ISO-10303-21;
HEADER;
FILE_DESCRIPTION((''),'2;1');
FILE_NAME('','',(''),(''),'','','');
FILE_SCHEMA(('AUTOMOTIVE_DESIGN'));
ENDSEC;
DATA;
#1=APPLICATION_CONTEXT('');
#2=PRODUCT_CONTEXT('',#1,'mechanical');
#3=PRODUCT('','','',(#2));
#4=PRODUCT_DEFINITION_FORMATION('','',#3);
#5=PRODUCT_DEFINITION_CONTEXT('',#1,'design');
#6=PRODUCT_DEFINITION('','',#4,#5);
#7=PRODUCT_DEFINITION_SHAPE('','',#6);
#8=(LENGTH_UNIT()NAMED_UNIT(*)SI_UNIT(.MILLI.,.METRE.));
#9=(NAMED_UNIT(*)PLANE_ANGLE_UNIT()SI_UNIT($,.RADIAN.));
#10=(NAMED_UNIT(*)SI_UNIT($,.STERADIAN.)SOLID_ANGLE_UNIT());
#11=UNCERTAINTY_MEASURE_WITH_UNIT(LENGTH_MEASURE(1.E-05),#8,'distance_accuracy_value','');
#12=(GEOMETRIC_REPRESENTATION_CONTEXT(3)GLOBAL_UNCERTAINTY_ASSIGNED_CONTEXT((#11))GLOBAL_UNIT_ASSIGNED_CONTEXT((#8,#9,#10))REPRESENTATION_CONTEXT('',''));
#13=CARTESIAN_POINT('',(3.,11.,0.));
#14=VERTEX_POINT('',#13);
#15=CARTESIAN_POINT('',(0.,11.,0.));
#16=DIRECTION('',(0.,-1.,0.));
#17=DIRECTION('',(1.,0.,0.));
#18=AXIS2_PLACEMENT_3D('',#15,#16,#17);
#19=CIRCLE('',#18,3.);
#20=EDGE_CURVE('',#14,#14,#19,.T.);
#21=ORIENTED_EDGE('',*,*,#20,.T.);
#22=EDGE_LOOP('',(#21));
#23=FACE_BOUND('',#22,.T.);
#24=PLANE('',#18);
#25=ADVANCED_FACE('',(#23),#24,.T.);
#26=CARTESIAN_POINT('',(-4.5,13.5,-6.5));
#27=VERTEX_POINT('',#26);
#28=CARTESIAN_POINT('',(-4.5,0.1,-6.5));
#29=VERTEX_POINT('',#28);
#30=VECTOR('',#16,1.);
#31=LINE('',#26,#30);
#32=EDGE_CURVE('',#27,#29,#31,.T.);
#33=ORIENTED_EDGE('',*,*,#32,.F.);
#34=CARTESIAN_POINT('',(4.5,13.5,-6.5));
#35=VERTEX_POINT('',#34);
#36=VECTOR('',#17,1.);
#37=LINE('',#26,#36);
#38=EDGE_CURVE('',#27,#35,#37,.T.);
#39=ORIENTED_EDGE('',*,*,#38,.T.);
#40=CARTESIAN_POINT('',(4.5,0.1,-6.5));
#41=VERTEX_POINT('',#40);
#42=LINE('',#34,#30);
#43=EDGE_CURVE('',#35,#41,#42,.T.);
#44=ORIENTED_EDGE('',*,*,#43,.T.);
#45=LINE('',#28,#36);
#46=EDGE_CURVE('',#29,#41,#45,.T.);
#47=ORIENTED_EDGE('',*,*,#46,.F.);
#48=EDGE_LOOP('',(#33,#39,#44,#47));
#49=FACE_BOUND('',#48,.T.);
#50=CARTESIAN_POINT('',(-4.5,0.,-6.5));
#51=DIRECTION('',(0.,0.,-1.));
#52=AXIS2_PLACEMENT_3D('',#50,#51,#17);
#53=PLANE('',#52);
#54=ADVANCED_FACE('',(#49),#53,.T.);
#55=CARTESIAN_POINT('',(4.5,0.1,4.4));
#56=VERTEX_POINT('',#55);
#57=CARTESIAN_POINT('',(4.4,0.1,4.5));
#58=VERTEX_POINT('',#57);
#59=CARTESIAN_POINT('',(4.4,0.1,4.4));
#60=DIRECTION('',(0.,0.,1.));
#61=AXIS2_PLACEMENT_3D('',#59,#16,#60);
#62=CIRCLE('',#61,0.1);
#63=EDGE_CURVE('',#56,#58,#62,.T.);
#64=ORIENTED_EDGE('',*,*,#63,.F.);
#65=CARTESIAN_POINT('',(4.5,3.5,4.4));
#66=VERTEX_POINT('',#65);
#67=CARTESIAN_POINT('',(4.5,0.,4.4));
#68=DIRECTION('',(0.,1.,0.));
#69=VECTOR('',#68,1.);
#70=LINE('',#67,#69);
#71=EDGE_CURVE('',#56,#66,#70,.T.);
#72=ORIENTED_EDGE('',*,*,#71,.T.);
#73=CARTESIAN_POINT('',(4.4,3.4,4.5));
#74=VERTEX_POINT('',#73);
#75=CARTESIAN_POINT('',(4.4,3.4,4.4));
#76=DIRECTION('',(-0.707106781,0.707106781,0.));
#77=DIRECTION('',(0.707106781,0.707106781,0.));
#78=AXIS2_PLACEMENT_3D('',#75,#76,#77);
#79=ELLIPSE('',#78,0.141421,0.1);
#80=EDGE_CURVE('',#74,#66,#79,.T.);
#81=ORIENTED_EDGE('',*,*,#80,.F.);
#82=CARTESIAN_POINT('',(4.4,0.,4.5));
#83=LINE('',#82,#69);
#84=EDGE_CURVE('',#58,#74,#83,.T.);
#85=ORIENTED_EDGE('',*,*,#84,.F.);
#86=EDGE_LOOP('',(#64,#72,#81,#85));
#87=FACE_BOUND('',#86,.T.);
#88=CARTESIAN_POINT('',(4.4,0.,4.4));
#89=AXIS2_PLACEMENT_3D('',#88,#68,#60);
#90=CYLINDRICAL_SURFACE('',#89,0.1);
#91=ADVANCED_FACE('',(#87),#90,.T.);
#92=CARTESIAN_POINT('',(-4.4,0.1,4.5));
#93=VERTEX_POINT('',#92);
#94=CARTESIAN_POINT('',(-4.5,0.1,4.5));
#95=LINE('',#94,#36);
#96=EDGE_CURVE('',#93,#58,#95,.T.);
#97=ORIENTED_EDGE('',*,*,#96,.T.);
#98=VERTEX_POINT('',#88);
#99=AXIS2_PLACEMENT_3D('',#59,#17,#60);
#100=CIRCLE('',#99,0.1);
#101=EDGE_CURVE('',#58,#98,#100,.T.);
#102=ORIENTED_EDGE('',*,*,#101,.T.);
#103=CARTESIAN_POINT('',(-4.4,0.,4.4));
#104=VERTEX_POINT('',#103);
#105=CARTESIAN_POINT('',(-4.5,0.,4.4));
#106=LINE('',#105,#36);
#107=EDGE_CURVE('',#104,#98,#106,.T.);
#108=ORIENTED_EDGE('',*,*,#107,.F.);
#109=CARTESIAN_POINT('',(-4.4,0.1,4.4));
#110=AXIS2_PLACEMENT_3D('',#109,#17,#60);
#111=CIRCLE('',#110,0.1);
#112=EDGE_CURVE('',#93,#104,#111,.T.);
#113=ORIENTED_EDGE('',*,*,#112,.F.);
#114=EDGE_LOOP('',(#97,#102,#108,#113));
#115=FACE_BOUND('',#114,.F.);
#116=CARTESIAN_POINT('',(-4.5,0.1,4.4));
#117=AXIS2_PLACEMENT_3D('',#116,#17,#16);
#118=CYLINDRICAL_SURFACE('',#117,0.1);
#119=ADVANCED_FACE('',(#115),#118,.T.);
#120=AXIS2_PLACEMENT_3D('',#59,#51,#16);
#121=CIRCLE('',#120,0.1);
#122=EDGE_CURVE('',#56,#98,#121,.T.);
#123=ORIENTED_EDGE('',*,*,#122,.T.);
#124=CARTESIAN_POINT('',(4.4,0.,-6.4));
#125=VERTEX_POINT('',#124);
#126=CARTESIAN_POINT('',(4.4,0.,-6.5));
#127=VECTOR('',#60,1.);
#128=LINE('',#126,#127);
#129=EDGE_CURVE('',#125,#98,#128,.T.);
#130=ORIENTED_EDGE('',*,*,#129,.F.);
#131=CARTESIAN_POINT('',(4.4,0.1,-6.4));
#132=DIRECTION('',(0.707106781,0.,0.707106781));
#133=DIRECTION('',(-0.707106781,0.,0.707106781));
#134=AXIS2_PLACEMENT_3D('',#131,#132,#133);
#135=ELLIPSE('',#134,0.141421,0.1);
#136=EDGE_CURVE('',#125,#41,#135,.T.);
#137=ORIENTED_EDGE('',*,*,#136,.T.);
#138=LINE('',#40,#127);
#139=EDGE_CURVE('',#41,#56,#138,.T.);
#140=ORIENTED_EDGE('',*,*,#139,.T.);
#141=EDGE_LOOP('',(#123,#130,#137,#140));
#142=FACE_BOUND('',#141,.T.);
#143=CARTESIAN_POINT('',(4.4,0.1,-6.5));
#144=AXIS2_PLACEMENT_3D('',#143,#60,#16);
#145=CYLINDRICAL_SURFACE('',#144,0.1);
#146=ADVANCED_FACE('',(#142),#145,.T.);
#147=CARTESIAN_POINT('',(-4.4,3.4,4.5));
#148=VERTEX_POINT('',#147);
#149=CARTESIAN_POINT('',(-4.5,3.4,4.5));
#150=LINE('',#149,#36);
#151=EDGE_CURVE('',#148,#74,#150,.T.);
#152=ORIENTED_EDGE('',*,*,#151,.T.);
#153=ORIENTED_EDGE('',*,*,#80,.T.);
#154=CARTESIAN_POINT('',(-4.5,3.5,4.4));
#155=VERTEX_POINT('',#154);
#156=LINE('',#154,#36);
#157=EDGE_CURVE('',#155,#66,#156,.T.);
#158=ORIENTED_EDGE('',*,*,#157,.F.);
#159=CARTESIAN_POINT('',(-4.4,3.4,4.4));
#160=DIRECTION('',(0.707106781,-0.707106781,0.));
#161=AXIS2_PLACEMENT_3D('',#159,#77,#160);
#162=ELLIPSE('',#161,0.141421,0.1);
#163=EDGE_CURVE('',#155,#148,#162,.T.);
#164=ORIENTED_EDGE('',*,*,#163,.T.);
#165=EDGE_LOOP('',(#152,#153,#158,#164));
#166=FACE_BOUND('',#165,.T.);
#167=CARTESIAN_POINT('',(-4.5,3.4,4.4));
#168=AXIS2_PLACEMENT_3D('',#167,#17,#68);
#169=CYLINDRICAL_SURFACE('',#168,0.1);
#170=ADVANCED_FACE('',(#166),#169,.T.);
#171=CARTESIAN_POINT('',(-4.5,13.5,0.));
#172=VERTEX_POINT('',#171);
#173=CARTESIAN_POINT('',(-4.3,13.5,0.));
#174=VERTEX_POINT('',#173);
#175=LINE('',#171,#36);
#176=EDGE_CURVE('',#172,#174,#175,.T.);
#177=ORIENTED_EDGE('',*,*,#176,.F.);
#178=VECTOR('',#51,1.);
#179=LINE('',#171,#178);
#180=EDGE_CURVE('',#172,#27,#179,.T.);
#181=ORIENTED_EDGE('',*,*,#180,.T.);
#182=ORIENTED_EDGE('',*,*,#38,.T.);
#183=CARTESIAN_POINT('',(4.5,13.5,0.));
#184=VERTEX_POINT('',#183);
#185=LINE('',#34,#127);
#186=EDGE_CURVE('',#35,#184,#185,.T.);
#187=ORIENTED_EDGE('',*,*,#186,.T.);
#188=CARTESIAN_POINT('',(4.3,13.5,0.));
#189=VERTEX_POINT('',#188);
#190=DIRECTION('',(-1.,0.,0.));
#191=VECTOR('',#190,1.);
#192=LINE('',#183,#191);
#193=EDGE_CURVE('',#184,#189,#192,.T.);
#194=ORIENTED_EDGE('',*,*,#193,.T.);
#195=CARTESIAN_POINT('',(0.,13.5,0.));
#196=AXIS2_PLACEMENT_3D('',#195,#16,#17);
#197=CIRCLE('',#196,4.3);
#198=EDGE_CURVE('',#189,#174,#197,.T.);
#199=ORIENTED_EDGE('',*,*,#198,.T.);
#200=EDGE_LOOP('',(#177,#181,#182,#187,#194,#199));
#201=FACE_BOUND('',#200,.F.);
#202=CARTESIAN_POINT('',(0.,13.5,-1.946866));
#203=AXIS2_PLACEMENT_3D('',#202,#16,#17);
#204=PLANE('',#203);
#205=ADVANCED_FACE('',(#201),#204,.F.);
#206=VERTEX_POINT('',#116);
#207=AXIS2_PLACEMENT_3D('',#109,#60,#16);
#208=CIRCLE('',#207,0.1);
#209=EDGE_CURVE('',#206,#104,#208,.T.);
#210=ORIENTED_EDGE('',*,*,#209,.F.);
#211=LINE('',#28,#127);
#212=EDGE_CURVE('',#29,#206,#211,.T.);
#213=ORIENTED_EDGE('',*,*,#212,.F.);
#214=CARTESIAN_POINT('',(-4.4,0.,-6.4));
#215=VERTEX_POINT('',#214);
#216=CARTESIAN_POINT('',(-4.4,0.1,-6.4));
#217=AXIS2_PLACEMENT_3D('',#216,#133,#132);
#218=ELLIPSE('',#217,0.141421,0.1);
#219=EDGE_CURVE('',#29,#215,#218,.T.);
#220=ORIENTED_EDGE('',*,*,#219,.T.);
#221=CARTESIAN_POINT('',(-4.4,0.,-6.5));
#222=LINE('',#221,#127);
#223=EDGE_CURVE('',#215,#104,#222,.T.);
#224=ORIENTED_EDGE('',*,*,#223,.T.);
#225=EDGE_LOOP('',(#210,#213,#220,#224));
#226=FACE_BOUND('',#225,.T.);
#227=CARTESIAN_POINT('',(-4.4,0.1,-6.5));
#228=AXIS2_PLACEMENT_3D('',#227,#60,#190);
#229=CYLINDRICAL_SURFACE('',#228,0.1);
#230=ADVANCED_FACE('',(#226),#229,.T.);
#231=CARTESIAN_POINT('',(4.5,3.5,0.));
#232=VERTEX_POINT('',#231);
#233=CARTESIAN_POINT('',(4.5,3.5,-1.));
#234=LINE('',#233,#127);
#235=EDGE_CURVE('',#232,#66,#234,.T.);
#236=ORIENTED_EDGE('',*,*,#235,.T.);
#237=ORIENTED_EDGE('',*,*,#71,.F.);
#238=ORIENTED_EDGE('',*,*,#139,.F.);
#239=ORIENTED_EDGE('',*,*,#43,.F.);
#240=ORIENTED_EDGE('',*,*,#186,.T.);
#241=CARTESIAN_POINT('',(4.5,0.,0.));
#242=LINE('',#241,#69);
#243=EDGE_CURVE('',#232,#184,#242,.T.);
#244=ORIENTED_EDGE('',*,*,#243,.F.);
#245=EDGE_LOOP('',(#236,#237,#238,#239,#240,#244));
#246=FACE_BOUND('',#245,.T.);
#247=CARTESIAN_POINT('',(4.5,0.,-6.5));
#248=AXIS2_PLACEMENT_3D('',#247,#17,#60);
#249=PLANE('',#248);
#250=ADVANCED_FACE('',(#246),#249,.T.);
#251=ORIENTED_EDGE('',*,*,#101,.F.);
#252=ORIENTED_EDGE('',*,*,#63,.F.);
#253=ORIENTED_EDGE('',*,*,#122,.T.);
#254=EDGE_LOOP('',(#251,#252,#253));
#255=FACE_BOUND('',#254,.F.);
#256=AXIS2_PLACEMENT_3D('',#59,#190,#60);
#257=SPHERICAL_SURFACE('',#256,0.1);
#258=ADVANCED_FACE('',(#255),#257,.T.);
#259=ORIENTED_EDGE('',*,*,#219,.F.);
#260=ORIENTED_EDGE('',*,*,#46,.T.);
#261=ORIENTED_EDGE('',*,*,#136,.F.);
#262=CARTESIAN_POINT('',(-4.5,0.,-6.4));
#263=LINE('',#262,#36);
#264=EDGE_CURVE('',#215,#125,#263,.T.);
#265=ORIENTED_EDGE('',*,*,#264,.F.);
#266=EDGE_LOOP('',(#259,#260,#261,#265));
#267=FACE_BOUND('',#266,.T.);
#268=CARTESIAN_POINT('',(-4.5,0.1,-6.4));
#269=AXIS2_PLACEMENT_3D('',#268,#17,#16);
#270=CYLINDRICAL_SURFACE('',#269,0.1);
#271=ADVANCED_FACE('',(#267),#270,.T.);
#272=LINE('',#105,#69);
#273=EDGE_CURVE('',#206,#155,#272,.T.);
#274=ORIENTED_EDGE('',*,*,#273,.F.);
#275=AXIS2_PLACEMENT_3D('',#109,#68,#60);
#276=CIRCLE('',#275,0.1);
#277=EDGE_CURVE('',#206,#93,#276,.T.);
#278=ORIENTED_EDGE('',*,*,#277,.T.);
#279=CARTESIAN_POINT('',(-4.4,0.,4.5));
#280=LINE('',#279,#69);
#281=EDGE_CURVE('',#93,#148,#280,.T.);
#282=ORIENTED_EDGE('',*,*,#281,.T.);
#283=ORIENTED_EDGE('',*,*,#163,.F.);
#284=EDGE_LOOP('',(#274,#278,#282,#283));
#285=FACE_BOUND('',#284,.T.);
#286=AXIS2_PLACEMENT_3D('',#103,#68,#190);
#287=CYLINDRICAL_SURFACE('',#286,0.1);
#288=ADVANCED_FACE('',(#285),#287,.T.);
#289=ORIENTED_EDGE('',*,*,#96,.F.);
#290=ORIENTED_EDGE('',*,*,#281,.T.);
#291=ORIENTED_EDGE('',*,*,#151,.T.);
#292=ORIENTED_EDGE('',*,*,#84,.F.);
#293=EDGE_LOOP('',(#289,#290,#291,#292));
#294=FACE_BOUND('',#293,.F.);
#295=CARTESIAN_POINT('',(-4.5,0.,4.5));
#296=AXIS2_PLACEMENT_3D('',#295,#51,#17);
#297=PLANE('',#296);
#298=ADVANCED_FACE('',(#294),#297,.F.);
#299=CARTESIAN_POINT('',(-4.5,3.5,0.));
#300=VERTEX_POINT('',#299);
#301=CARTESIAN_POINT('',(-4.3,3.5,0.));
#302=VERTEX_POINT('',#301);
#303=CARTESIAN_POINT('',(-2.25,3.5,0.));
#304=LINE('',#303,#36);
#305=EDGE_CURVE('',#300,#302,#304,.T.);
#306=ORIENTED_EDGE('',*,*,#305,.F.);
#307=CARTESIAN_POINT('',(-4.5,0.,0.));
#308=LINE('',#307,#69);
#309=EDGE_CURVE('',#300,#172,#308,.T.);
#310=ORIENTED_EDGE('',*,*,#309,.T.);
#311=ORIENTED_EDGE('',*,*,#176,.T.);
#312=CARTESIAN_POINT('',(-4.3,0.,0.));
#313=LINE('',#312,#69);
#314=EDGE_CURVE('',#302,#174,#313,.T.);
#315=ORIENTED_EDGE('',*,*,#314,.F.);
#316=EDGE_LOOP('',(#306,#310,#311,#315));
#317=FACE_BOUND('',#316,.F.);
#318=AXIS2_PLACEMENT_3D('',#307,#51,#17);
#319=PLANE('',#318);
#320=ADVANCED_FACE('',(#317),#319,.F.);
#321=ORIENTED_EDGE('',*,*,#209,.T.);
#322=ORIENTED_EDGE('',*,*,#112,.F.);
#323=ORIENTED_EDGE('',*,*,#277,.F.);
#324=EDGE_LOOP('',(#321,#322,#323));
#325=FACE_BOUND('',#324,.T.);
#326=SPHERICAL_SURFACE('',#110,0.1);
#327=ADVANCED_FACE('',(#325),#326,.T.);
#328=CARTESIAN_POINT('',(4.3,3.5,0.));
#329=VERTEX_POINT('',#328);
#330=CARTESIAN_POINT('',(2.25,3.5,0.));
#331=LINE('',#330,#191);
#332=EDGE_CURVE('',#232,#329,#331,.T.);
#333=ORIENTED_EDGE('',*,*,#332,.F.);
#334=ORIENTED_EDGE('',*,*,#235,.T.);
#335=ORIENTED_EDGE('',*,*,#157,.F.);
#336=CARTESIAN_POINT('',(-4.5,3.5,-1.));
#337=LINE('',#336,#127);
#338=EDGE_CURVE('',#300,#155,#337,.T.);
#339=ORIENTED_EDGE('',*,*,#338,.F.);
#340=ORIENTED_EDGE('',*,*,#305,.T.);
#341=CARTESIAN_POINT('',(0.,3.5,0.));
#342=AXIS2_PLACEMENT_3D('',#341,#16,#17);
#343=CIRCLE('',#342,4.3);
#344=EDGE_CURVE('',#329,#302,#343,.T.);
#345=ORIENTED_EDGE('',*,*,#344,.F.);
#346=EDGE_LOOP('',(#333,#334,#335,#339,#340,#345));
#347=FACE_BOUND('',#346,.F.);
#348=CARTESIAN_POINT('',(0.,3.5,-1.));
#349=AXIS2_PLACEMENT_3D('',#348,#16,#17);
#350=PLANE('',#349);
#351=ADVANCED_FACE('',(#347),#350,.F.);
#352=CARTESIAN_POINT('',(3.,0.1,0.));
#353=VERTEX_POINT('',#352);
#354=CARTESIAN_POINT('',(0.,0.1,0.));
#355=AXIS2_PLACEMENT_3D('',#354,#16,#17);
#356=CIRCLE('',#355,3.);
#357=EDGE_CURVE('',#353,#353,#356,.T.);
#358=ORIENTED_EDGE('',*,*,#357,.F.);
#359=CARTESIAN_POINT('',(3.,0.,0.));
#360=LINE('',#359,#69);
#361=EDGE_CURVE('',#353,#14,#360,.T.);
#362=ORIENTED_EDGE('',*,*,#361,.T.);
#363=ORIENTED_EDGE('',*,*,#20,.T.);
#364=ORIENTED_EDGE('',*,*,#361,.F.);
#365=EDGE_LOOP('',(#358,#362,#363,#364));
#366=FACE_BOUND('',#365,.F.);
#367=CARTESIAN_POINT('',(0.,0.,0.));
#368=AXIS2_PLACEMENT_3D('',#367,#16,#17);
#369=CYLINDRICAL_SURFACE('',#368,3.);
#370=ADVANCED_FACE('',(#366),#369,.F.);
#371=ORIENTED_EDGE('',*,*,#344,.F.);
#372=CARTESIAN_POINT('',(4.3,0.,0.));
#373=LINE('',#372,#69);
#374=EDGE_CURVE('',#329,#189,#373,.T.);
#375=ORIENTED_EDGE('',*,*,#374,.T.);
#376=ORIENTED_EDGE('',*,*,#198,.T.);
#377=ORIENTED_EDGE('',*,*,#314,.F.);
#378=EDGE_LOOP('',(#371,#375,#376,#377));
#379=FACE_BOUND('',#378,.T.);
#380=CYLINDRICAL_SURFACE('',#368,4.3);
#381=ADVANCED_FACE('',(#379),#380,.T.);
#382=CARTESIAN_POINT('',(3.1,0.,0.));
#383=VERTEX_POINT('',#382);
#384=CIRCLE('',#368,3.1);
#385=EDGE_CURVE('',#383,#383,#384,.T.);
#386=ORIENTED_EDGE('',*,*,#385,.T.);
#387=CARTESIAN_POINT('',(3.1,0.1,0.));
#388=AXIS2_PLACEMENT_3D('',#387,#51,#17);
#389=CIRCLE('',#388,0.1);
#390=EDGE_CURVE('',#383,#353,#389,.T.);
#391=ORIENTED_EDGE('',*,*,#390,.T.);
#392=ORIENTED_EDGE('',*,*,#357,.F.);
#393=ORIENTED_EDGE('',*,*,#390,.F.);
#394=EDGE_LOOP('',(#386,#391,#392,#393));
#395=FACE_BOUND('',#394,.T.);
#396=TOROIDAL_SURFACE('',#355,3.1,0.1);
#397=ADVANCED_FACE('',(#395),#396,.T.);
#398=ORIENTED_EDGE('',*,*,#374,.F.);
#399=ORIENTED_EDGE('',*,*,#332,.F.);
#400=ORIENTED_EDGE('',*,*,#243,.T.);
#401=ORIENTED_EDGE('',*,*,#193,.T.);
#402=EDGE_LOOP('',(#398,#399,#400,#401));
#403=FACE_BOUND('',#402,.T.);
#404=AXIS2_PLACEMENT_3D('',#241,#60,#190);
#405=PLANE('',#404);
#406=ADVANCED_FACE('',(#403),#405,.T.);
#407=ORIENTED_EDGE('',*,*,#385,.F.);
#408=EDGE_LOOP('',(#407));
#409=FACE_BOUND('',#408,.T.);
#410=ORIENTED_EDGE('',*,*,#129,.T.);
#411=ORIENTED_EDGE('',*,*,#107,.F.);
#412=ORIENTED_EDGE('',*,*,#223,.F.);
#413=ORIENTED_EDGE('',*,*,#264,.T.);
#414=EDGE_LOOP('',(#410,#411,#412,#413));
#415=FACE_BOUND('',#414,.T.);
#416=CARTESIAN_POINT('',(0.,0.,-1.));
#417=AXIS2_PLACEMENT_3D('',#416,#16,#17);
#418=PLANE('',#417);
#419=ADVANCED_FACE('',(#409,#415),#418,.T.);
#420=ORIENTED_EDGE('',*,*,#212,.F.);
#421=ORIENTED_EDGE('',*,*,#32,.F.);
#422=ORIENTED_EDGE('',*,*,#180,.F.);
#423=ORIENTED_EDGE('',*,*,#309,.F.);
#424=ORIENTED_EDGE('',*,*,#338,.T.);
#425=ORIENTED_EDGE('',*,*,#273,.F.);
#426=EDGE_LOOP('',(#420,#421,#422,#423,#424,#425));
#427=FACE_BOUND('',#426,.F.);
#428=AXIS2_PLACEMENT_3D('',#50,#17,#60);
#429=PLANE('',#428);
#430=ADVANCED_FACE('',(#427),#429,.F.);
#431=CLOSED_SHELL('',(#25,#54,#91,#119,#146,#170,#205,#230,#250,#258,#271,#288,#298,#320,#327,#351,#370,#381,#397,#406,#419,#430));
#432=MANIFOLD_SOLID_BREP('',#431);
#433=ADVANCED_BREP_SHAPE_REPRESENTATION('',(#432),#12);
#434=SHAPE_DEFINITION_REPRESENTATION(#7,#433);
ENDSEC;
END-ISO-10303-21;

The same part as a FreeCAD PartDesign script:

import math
import FreeCAD as App
import Part
import Sketcher
from FreeCAD import Vector


def edges_at(feature, points):
    """Names of the edges that pass closest to the given points."""
    edges = feature.Shape.Edges
    near = lambda p: min(range(len(edges)), key=lambda i: edges[i].distToShape(Part.Vertex(*p))[0])
    return sorted({f"Edge{near(p) + 1}" for p in points})

doc = App.newDocument("Part")
body = doc.addObject("PartDesign::Body", "Body")

# Sketch on XZ plane
sketch1 = body.newObject("Sketcher::SketchObject", "Sketch")
sketch1.AttachmentSupport = (doc.getObject("XZ_Plane"), [""])
sketch1.MapMode = "FlatFace"
sketch1.addGeometry([
    Part.LineSegment(Vector(-4, 4, 0), Vector(-4, -6, 0)),
    Part.LineSegment(Vector(-4, -6, 0), Vector(4, -6, 0)),
    Part.LineSegment(Vector(4, -6, 0), Vector(4, 4, 0)),
    Part.LineSegment(Vector(4, 4, 0), Vector(-4, 4, 0)),
], False)
sketch1.addConstraint([
    Sketcher.Constraint("Coincident", 0, 2, 1, 1),
    Sketcher.Constraint("Coincident", 1, 2, 2, 1),
    Sketcher.Constraint("Coincident", 2, 2, 3, 1),
    Sketcher.Constraint("Coincident", 3, 2, 0, 1),
    Sketcher.Constraint("Vertical", 0),
    Sketcher.Constraint("Horizontal", 1),
    Sketcher.Constraint("Vertical", 2),
    Sketcher.Constraint("Horizontal", 3),
    Sketcher.Constraint("DistanceX", 1, 1, 1, 2, 9.0),
    Sketcher.Constraint("DistanceY", 0, 2, 0, 1, 11.0),
    Sketcher.Constraint("DistanceX", 0, 2, -1, 1, 4.5),
    Sketcher.Constraint("DistanceY", 0, 2, -1, 1, 6.5),
])
pad1 = body.newObject("PartDesign::Pad", "Pad")
pad1.Profile = sketch1
pad1.Length = 3.5
pad1.Reversed = True

# Sketch on XZ plane
sketch2 = body.newObject("Sketcher::SketchObject", "Sketch001")
sketch2.AttachmentSupport = (doc.getObject("XZ_Plane"), [""])
sketch2.MapMode = "FlatFace"
sketch2.addGeometry([
    Part.LineSegment(Vector(-4.5, -6.5, 0), Vector(4.5, -6.5, 0)),  # 0
    Part.LineSegment(Vector(4.5, -6.5, 0), Vector(4.5, 0, 0)),  # 1
    Part.LineSegment(Vector(4.5, 0, 0), Vector(4.3, 0, 0)),  # 2
    Part.ArcOfCircle(Part.Circle(Vector(0, 0, 0), Vector(0, 0, 1), 4.3), math.radians(0), math.radians(180)),  # 3
    Part.LineSegment(Vector(-4.3, 0, 0), Vector(-4.5, 0, 0)),  # 4
    Part.LineSegment(Vector(-4.5, 0, 0), Vector(-4.5, -6.5, 0)),  # 5
], False)
sketch2.addConstraint([
    Sketcher.Constraint("Coincident", 0, 2, 1, 1),
    Sketcher.Constraint("Coincident", 1, 2, 2, 1),
    Sketcher.Constraint("Coincident", 2, 2, 3, 1),
    Sketcher.Constraint("Coincident", 3, 2, 4, 1),
    Sketcher.Constraint("Coincident", 4, 2, 5, 1),
    Sketcher.Constraint("Coincident", 5, 2, 0, 1),
    Sketcher.Constraint("Horizontal", 0),
    Sketcher.Constraint("Vertical", 1),
    Sketcher.Constraint("Horizontal", 2),
    Sketcher.Constraint("Horizontal", 4),
    Sketcher.Constraint("Vertical", 5),
    Sketcher.Constraint("Coincident", 3, 3, -1, 1),
    Sketcher.Constraint("Symmetric", 1, 2, 4, 2, -1, 1),
    Sketcher.Constraint("PointOnObject", 1, 2, -1),
    Sketcher.Constraint("Radius", 3, 4.3),
    Sketcher.Constraint("DistanceX", 0, 1, 0, 2, 9.0),
    Sketcher.Constraint("DistanceY", 1, 1, 1, 2, 6.5),
])
pad2 = body.newObject("PartDesign::Pad", "Pad001")
pad2.Profile = sketch2
pad2.Length = 13.5
pad2.Reversed = True

# Sketch on XZ plane
sketch3 = body.newObject("Sketcher::SketchObject", "Sketch002")
sketch3.AttachmentSupport = (doc.getObject("XZ_Plane"), [""])
sketch3.MapMode = "FlatFace"
sketch3.addGeometry(Part.Circle(Vector(0, 0, 0), Vector(0, 0, 1), 3), False)
sketch3.addConstraint([
    Sketcher.Constraint("Coincident", 0, 3, -1, 1),
    Sketcher.Constraint("Diameter", 0, 6.0),
])
pocket1 = body.newObject("PartDesign::Pocket", "Pocket")
pocket1.Profile = sketch3
pocket1.Length = 11
doc.recompute()

fillet = body.newObject("PartDesign::Fillet", "Fillet")
fillet.Base = (pocket1, edges_at(pocket1, [
    (0, 0, 4.5),
    (4.5, 1.75, 4.5),
    (0, 3.5, 4.5),
    (-4.5, 1.75, 4.5),
    (4.5, 0, -1),
    (-4.5, 0, -1),
    (0, 0, -6.5),
    (-3, 0, 0),
]))
fillet.Radius = 0.1

doc.recompute()
